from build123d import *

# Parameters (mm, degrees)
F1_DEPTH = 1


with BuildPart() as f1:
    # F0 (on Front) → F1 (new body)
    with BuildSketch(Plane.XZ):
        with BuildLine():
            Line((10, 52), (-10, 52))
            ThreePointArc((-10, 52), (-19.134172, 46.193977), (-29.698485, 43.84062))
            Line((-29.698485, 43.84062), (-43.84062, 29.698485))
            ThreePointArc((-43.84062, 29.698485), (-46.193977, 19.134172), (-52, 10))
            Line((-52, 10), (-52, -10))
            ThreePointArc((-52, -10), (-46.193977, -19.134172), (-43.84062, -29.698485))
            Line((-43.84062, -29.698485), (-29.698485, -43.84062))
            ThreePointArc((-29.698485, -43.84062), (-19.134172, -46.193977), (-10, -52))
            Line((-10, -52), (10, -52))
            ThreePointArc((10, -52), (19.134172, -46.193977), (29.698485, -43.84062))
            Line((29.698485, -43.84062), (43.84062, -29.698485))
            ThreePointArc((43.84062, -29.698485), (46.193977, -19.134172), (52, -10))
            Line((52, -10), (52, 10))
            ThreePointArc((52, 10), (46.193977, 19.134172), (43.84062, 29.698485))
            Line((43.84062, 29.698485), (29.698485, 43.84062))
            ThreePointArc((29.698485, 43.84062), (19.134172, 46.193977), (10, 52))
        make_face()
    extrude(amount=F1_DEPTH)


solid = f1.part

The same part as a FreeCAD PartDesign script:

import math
import FreeCAD as App
import Part
import Sketcher
from FreeCAD import Vector

doc = App.newDocument("Part")
body = doc.addObject("PartDesign::Body", "Body")

# Sketch on XZ plane
sketch1 = doc.addObject("Sketcher::SketchObject", "Sketch")
body.addObject(sketch1)
sketch1.AttachmentSupport = (doc.XZ_Plane, [""])
sketch1.MapMode = "FlatFace"
sketch1.addGeometry(Part.LineSegment(Vector(10, 52, 0), Vector(-10, 52, 0)), False)
sketch1.addGeometry(Part.ArcOfCircle(Part.Circle(Vector(-31.129629, 75.153571, 0), Vector(0, 0, 1), 31.345639), math.radians(-87.383144), math.radians(-47.616854)), False)
sketch1.addGeometry(Part.LineSegment(Vector(-29.698485, 43.84062, 0), Vector(-43.84062, 29.698485, 0)), False)
sketch1.addGeometry(Part.ArcOfCircle(Part.Circle(Vector(-75.153571, 31.129629, 0), Vector(0, 0, 1), 31.345639), math.radians(-42.383146), math.radians(-2.616856)), False)
sketch1.addGeometry(Part.LineSegment(Vector(-52, 10, 0), Vector(-52, -10, 0)), False)
sketch1.addGeometry(Part.ArcOfCircle(Part.Circle(Vector(-75.153571, -31.129629, 0), Vector(0, 0, 1), 31.345639), math.radians(2.616856), math.radians(42.383146)), False)
sketch1.addGeometry(Part.LineSegment(Vector(-43.84062, -29.698485, 0), Vector(-29.698485, -43.84062, 0)), False)
sketch1.addGeometry(Part.ArcOfCircle(Part.Circle(Vector(-31.129629, -75.153571, 0), Vector(0, 0, 1), 31.345639), math.radians(47.616854), math.radians(87.383144)), False)
sketch1.addGeometry(Part.LineSegment(Vector(-10, -52, 0), Vector(10, -52, 0)), False)
sketch1.addGeometry(Part.ArcOfCircle(Part.Circle(Vector(31.129629, -75.153571, 0), Vector(0, 0, 1), 31.345639), math.radians(92.616856), math.radians(132.383146)), False)
sketch1.addGeometry(Part.LineSegment(Vector(29.698485, -43.84062, 0), Vector(43.84062, -29.698485, 0)), False)
sketch1.addGeometry(Part.ArcOfCircle(Part.Circle(Vector(75.153571, -31.129629, 0), Vector(0, 0, 1), 31.345639), math.radians(137.616854), math.radians(177.383144)), False)
sketch1.addGeometry(Part.LineSegment(Vector(52, -10, 0), Vector(52, 10, 0)), False)
sketch1.addGeometry(Part.ArcOfCircle(Part.Circle(Vector(75.153571, 31.129629, 0), Vector(0, 0, 1), 31.345639), math.radians(-177.383144), math.radians(-137.616854)), False)
sketch1.addGeometry(Part.LineSegment(Vector(43.84062, 29.698485, 0), Vector(29.698485, 43.84062, 0)), False)
sketch1.addGeometry(Part.ArcOfCircle(Part.Circle(Vector(31.129629, 75.153571, 0), Vector(0, 0, 1), 31.345639), math.radians(-132.383146), math.radians(-92.616856)), False)
sketch1.addConstraint(Sketcher.Constraint("Coincident", 0, 2, 1, 2))
sketch1.addConstraint(Sketcher.Constraint("Coincident", 1, 1, 2, 1))
sketch1.addConstraint(Sketcher.Constraint("Coincident", 2, 2, 3, 2))
sketch1.addConstraint(Sketcher.Constraint("Coincident", 3, 1, 4, 1))
sketch1.addConstraint(Sketcher.Constraint("Coincident", 4, 2, 5, 2))
sketch1.addConstraint(Sketcher.Constraint("Coincident", 5, 1, 6, 1))
sketch1.addConstraint(Sketcher.Constraint("Coincident", 6, 2, 7, 2))
sketch1.addConstraint(Sketcher.Constraint("Coincident", 7, 1, 8, 1))
sketch1.addConstraint(Sketcher.Constraint("Coincident", 8, 2, 9, 2))
sketch1.addConstraint(Sketcher.Constraint("Coincident", 9, 1, 10, 1))
sketch1.addConstraint(Sketcher.Constraint("Coincident", 10, 2, 11, 2))
sketch1.addConstraint(Sketcher.Constraint("Coincident", 11, 1, 12, 1))
sketch1.addConstraint(Sketcher.Constraint("Coincident", 12, 2, 13, 2))
sketch1.addConstraint(Sketcher.Constraint("Coincident", 13, 1, 14, 1))
sketch1.addConstraint(Sketcher.Constraint("Coincident", 14, 2, 15, 2))
sketch1.addConstraint(Sketcher.Constraint("Coincident", 15, 1, 0, 1))
sketch1.addConstraint(Sketcher.Constraint("Horizontal", 0))
sketch1.addConstraint(Sketcher.Constraint("Vertical", 4))
sketch1.addConstraint(Sketcher.Constraint("Horizontal", 8))
sketch1.addConstraint(Sketcher.Constraint("Vertical", 12))
sketch1.addConstraint(Sketcher.Constraint("Equal", 1, 3))
sketch1.addConstraint(Sketcher.Constraint("Equal", 3, 5))
sketch1.addConstraint(Sketcher.Constraint("Equal", 5, 7))
sketch1.addConstraint(Sketcher.Constraint("Equal", 7, 9))
sketch1.addConstraint(Sketcher.Constraint("Equal", 9, 11))
sketch1.addConstraint(Sketcher.Constraint("Equal", 11, 13))
sketch1.addConstraint(Sketcher.Constraint("Equal", 13, 15))
sketch1.addConstraint(Sketcher.Constraint("Symmetric", 1, 3, 9, 3, -1, 1))
sketch1.addConstraint(Sketcher.Constraint("Symmetric", 3, 3, 11, 3, -1, 1))
sketch1.addConstraint(Sketcher.Constraint("Symmetric", 5, 3, 13, 3, -1, 1))
sketch1.addConstraint(Sketcher.Constraint("Symmetric", 7, 3, 15, 3, -1, 1))
sketch1.addConstraint(Sketcher.Constraint("Symmetric", 7, 3, 9, 3, -2))
sketch1.addConstraint(Sketcher.Constraint("Symmetric", 5, 3, 11, 3, -2))
sketch1.addConstraint(Sketcher.Constraint("Perpendicular", 2, 6))
sketch1.addConstraint(Sketcher.Constraint("Perpendicular", 6, 10))
sketch1.addConstraint(Sketcher.Constraint("Perpendicular", 10, 14))
sketch1.addConstraint(Sketcher.Constraint("Horizontal", 6, 2, 9, 1))
sketch1.addConstraint(Sketcher.Constraint("Horizontal", 5, 1, 10, 2))
sketch1.addConstraint(Sketcher.Constraint("Horizontal", 4, 2, 11, 1))
sketch1.addConstraint(Sketcher.Constraint("Horizontal", 2, 2, 13, 1))
sketch1.addConstraint(Sketcher.Constraint("Vertical", 2, 2, 5, 1))
sketch1.addConstraint(Sketcher.Constraint("Vertical", 0, 2, 7, 1))
sketch1.addConstraint(Sketcher.Constraint("Equal", 8, 4))
sketch1.addConstraint(Sketcher.Constraint("DistanceX", 0, 2, 0, 1, 20.0))
sketch1.addConstraint(Sketcher.Constraint("Distance", 2, 19.999999))
sketch1.addConstraint(Sketcher.Constraint("DistanceY", -1, 1, 0, 2, 52.0))
sketch1.addConstraint(Sketcher.Constraint("DistanceX", 3, 1, -1, 1, 52.0))
sketch1.addConstraint(Sketcher.Constraint("Radius", 1, 31.345639))
sketch1.addConstraint(Sketcher.Constraint("DistanceY", 5, 3, 1, 3, 106.2832))
sketch1.addConstraint(Sketcher.Constraint("DistanceX", 5, 3, 9, 3, 106.2832))
pad1 = doc.addObject("PartDesign::Pad", "Pad")
body.addObject(pad1)
pad1.Profile = sketch1
pad1.Length = 1

doc.recompute()
